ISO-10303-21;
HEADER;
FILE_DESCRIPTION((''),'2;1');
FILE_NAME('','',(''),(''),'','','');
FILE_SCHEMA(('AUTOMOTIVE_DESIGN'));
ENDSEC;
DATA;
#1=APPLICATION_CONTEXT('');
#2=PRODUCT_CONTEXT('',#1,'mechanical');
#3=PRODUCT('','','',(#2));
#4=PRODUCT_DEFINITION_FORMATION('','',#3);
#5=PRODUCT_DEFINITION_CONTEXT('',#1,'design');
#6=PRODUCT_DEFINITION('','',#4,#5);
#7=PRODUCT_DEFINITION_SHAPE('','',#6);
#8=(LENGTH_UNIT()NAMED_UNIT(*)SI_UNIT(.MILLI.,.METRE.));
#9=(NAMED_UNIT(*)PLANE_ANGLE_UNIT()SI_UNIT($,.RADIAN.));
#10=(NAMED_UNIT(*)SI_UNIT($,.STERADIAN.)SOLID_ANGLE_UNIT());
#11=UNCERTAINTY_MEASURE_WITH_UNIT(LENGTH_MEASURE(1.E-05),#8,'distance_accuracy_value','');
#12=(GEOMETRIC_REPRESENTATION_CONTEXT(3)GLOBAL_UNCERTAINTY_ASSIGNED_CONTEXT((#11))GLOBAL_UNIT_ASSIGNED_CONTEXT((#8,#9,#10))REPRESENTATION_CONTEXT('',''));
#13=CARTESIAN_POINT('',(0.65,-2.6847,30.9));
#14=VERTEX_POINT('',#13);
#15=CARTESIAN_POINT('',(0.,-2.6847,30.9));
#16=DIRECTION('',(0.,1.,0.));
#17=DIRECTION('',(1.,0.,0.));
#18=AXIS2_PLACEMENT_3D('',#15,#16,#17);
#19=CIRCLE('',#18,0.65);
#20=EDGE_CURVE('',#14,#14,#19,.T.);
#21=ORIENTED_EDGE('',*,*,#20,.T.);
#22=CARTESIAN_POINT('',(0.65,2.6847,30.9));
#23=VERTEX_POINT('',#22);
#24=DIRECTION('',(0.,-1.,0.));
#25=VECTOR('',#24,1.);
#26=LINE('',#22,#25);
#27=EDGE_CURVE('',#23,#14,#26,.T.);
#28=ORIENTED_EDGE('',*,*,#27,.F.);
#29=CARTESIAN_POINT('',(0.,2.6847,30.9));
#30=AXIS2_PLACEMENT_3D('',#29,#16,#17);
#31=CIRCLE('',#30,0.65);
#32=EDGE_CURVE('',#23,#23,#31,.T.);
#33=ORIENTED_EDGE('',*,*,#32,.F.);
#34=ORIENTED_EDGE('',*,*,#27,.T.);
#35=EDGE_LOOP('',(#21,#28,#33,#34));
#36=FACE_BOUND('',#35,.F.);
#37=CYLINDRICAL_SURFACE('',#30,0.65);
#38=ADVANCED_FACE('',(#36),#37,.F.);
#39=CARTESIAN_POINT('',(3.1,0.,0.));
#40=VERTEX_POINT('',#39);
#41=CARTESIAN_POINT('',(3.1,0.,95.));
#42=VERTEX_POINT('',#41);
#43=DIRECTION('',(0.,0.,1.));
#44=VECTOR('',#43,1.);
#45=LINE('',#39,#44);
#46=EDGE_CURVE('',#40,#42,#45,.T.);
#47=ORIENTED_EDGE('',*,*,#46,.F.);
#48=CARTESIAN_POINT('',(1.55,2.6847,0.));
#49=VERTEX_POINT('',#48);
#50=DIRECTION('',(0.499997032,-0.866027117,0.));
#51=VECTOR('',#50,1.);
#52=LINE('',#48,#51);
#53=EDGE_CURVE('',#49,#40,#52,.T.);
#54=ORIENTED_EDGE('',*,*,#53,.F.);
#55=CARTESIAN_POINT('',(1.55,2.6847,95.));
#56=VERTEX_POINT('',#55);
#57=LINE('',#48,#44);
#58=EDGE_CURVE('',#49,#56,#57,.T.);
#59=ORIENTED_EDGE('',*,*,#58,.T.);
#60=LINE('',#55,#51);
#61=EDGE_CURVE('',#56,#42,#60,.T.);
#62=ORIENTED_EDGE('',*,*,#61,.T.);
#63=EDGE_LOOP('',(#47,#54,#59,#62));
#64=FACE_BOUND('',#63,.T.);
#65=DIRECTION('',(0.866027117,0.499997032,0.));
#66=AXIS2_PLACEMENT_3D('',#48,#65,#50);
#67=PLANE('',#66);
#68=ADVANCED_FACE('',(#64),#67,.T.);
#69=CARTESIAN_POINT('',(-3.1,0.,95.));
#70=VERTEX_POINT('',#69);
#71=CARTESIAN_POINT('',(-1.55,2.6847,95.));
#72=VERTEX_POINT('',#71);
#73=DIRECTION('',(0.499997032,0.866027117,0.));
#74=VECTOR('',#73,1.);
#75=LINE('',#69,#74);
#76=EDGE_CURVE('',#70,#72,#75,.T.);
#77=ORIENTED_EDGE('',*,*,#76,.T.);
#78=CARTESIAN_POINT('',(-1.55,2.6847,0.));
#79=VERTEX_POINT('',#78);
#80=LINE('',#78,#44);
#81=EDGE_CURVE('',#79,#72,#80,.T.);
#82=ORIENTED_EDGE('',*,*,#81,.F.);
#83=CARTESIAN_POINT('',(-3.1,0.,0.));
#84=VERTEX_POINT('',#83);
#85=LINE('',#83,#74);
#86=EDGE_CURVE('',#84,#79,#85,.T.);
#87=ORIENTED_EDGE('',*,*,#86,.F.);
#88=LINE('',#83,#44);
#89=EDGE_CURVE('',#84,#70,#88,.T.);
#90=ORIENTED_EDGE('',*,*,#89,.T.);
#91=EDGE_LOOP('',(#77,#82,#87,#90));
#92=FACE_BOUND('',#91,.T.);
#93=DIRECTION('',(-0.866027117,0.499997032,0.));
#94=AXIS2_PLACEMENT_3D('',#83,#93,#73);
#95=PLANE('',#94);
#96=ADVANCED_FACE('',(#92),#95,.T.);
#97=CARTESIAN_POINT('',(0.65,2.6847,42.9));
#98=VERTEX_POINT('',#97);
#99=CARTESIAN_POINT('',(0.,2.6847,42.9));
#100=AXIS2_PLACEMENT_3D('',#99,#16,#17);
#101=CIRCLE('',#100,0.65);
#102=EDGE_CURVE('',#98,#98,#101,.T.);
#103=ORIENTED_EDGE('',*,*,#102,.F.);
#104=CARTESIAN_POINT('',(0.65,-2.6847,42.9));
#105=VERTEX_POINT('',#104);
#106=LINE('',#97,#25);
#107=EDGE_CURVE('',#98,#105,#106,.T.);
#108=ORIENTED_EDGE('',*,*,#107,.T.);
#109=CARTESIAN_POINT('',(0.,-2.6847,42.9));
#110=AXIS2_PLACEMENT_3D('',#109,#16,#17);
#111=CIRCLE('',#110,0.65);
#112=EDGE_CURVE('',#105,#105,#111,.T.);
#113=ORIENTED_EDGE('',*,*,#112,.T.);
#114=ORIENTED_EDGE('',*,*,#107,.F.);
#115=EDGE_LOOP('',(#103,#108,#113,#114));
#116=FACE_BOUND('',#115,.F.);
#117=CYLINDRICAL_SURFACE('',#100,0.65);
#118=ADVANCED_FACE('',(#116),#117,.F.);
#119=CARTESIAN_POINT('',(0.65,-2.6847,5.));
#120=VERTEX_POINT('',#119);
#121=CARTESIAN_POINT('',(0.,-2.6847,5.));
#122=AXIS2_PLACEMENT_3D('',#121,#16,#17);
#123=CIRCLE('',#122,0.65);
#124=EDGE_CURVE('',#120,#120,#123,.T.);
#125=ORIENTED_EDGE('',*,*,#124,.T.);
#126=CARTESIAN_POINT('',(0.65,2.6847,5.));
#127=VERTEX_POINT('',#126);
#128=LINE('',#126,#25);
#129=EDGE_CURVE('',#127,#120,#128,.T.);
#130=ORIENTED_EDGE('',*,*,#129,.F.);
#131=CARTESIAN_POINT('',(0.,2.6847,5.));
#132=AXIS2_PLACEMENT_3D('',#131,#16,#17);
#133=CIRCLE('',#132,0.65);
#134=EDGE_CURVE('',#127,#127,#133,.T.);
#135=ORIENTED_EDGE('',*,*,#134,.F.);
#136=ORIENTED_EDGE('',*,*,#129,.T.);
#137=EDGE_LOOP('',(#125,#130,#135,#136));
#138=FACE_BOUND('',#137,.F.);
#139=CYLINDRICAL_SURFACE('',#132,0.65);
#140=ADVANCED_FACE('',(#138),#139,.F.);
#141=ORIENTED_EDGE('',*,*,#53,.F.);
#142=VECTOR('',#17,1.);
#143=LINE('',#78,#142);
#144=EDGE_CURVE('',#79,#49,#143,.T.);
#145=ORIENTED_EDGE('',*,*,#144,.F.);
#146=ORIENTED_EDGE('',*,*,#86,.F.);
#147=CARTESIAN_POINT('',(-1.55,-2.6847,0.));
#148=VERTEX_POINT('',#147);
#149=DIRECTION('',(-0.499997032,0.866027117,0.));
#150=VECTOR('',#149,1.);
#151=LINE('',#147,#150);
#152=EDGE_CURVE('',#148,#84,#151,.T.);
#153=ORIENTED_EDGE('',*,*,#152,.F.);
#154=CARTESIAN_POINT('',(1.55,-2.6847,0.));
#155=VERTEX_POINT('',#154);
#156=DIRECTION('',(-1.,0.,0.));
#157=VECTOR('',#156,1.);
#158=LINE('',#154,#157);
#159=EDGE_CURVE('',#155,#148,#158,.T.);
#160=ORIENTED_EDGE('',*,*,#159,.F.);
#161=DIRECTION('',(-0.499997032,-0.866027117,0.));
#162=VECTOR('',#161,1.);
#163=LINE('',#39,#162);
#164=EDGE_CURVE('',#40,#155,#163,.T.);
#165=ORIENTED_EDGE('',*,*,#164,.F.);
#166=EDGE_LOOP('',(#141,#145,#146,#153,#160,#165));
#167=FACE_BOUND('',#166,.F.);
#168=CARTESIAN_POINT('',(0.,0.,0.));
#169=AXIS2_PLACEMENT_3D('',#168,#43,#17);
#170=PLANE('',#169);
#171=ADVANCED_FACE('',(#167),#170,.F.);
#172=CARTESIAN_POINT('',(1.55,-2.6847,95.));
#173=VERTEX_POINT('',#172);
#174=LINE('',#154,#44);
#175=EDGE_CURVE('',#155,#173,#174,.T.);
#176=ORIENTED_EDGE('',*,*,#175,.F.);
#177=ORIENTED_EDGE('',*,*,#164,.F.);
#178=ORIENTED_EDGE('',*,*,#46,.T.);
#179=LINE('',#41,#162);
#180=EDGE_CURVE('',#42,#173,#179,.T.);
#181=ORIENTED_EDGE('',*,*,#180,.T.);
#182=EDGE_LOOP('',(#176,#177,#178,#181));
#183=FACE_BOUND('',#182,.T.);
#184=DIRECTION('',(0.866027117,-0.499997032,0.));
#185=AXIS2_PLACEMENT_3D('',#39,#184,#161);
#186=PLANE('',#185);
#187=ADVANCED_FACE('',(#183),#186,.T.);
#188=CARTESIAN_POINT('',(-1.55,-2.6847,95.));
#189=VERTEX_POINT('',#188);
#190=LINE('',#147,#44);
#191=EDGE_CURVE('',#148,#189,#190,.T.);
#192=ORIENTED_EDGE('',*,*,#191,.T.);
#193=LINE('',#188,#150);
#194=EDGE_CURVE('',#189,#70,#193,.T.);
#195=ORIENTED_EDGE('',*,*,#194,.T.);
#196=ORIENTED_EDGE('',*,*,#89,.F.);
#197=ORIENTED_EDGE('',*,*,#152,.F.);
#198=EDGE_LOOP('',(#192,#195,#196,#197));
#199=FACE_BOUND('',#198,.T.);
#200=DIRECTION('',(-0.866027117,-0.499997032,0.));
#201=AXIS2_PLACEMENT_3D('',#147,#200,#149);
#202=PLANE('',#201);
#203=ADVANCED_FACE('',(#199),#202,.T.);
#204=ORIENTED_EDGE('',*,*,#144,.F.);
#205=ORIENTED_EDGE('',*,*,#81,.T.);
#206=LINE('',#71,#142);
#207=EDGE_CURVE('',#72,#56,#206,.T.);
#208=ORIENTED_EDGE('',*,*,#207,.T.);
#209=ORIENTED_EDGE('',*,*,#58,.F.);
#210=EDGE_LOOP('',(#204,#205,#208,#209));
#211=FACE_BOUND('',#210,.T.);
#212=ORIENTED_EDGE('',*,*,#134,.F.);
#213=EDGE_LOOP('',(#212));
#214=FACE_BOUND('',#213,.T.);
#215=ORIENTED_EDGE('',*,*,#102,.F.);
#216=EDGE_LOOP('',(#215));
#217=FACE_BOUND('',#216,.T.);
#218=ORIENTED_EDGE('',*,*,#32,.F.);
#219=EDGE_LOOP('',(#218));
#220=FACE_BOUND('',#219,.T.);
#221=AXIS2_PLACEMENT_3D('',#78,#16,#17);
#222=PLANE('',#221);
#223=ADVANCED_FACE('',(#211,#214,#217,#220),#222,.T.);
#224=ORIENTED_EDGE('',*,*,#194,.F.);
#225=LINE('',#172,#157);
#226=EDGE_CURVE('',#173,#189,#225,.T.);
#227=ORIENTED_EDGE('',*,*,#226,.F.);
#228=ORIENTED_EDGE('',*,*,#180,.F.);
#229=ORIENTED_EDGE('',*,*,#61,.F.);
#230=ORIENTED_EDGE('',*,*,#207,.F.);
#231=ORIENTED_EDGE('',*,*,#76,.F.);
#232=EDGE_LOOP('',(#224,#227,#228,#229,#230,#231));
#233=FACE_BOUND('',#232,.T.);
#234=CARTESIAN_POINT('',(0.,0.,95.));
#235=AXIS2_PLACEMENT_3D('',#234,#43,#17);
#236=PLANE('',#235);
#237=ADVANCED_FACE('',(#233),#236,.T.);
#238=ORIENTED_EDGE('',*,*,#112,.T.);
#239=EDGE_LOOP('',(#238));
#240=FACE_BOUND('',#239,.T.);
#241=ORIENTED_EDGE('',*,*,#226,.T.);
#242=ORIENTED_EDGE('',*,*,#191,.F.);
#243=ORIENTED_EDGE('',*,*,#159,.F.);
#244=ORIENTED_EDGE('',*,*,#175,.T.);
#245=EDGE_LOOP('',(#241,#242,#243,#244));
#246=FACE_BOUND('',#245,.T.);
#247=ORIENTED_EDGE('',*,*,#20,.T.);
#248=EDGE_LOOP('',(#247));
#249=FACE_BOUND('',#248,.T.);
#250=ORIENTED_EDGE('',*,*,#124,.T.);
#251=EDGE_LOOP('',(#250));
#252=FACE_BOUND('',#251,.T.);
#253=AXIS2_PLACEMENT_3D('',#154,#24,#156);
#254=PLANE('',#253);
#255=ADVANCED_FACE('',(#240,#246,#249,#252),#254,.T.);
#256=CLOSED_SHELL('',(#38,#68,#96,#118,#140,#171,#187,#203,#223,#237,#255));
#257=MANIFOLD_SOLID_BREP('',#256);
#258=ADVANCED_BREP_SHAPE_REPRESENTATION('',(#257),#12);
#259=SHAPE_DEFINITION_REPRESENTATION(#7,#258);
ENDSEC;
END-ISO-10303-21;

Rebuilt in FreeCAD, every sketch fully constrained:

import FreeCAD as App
import Part
import Sketcher
Q = App.Units.Quantity

doc = App.newDocument("Part")
body = doc.addObject("PartDesign::Body", "Body")

# Sketch on XY plane
sketch1 = body.newObject("Sketcher::SketchObject", "Sketch")
sketch1.AttachmentSupport = (doc.getObject("XY_Plane"), [""])
sketch1.MapMode = "FlatFace"
sketch1.addGeometry([
    Part.LineSegment(App.Vector(1.6, 2.7, 0), App.Vector(-1.6, 2.7, 0)),  # 0
    Part.LineSegment(App.Vector(-1.6, 2.7, 0), App.Vector(-3.1, 0, 0)),  # 1
    Part.LineSegment(App.Vector(-3.1, 0, 0), App.Vector(-1.6, -2.7, 0)),  # 2
    Part.LineSegment(App.Vector(-1.6, -2.7, 0), App.Vector(1.6, -2.7, 0)),  # 3
    Part.LineSegment(App.Vector(1.6, -2.7, 0), App.Vector(3.1, 0, 0)),  # 4
    Part.LineSegment(App.Vector(3.1, 0, 0), App.Vector(1.6, 2.7, 0)),  # 5
], False)
sketch1.addConstraint([
    Sketcher.Constraint("Coincident", 0, 2, 1, 1),
    Sketcher.Constraint("Coincident", 1, 2, 2, 1),
    Sketcher.Constraint("Coincident", 2, 2, 3, 1),
    Sketcher.Constraint("Coincident", 3, 2, 4, 1),
    Sketcher.Constraint("Coincident", 4, 2, 5, 1),
    Sketcher.Constraint("Coincident", 5, 2, 0, 1),
    Sketcher.Constraint("Horizontal", 0),
    Sketcher.Constraint("Horizontal", 3),
    Sketcher.Constraint("Symmetric", 0, 2, 3, 2, -1, 1),
    Sketcher.Constraint("Symmetric", 1, 2, 4, 2, -1, 1),
    Sketcher.Constraint("PointOnObject", 1, 2, -1),
    Sketcher.Constraint("Parallel", 2, 5),
    Sketcher.Constraint("Vertical", 0, 2, 2, 2),
    Sketcher.Constraint("DistanceX", 0, 2, 0, 1, Q("3.1 mm")),
    Sketcher.Constraint("Distance", 1, Q("3.1 mm")),
    Sketcher.Constraint("DistanceX", 1, 2, -1, 1, Q("3.1 mm")),
])
pad1 = body.newObject("PartDesign::Pad", "Pad")
pad1.Profile = sketch1
pad1.Length = 95

# Sketch on XZ plane
sketch2 = body.newObject("Sketcher::SketchObject", "Sketch001")
sketch2.AttachmentSupport = (doc.getObject("XZ_Plane"), [""])
sketch2.MapMode = "FlatFace"
sketch2.AttachmentOffset = App.Placement(App.Vector(0, 0, -2.6847), App.Rotation())
sketch2.addGeometry([
    Part.Circle(App.Vector(0, 30.9, 0), App.Vector(0, 0, 1), 0.7),
    Part.Circle(App.Vector(0, 42.9, 0), App.Vector(0, 0, 1), 0.7),
    Part.Circle(App.Vector(0, 5, 0), App.Vector(0, 0, 1), 0.7),
], False)
sketch2.addConstraint([
    Sketcher.Constraint("Equal", 0, 1),
    Sketcher.Constraint("Equal", 1, 2),
    Sketcher.Constraint("PointOnObject", 0, 3, -2),
    Sketcher.Constraint("PointOnObject", 1, 3, -2),
    Sketcher.Constraint("PointOnObject", 2, 3, -2),
    Sketcher.Constraint("Diameter", 0, Q("1.3 mm")),
    Sketcher.Constraint("DistanceY", -1, 1, 2, 3, Q("5 mm")),
    Sketcher.Constraint("DistanceY", 0, 3, 1, 3, Q("12 mm")),
    Sketcher.Constraint("DistanceY", -1, 1, 0, 3, Q("30.9 mm")),
])
pocket1 = body.newObject("PartDesign::Pocket", "Pocket")
pocket1.Profile = sketch2
pocket1.Length = 6
pocket1.Reversed = True

doc.recompute()
